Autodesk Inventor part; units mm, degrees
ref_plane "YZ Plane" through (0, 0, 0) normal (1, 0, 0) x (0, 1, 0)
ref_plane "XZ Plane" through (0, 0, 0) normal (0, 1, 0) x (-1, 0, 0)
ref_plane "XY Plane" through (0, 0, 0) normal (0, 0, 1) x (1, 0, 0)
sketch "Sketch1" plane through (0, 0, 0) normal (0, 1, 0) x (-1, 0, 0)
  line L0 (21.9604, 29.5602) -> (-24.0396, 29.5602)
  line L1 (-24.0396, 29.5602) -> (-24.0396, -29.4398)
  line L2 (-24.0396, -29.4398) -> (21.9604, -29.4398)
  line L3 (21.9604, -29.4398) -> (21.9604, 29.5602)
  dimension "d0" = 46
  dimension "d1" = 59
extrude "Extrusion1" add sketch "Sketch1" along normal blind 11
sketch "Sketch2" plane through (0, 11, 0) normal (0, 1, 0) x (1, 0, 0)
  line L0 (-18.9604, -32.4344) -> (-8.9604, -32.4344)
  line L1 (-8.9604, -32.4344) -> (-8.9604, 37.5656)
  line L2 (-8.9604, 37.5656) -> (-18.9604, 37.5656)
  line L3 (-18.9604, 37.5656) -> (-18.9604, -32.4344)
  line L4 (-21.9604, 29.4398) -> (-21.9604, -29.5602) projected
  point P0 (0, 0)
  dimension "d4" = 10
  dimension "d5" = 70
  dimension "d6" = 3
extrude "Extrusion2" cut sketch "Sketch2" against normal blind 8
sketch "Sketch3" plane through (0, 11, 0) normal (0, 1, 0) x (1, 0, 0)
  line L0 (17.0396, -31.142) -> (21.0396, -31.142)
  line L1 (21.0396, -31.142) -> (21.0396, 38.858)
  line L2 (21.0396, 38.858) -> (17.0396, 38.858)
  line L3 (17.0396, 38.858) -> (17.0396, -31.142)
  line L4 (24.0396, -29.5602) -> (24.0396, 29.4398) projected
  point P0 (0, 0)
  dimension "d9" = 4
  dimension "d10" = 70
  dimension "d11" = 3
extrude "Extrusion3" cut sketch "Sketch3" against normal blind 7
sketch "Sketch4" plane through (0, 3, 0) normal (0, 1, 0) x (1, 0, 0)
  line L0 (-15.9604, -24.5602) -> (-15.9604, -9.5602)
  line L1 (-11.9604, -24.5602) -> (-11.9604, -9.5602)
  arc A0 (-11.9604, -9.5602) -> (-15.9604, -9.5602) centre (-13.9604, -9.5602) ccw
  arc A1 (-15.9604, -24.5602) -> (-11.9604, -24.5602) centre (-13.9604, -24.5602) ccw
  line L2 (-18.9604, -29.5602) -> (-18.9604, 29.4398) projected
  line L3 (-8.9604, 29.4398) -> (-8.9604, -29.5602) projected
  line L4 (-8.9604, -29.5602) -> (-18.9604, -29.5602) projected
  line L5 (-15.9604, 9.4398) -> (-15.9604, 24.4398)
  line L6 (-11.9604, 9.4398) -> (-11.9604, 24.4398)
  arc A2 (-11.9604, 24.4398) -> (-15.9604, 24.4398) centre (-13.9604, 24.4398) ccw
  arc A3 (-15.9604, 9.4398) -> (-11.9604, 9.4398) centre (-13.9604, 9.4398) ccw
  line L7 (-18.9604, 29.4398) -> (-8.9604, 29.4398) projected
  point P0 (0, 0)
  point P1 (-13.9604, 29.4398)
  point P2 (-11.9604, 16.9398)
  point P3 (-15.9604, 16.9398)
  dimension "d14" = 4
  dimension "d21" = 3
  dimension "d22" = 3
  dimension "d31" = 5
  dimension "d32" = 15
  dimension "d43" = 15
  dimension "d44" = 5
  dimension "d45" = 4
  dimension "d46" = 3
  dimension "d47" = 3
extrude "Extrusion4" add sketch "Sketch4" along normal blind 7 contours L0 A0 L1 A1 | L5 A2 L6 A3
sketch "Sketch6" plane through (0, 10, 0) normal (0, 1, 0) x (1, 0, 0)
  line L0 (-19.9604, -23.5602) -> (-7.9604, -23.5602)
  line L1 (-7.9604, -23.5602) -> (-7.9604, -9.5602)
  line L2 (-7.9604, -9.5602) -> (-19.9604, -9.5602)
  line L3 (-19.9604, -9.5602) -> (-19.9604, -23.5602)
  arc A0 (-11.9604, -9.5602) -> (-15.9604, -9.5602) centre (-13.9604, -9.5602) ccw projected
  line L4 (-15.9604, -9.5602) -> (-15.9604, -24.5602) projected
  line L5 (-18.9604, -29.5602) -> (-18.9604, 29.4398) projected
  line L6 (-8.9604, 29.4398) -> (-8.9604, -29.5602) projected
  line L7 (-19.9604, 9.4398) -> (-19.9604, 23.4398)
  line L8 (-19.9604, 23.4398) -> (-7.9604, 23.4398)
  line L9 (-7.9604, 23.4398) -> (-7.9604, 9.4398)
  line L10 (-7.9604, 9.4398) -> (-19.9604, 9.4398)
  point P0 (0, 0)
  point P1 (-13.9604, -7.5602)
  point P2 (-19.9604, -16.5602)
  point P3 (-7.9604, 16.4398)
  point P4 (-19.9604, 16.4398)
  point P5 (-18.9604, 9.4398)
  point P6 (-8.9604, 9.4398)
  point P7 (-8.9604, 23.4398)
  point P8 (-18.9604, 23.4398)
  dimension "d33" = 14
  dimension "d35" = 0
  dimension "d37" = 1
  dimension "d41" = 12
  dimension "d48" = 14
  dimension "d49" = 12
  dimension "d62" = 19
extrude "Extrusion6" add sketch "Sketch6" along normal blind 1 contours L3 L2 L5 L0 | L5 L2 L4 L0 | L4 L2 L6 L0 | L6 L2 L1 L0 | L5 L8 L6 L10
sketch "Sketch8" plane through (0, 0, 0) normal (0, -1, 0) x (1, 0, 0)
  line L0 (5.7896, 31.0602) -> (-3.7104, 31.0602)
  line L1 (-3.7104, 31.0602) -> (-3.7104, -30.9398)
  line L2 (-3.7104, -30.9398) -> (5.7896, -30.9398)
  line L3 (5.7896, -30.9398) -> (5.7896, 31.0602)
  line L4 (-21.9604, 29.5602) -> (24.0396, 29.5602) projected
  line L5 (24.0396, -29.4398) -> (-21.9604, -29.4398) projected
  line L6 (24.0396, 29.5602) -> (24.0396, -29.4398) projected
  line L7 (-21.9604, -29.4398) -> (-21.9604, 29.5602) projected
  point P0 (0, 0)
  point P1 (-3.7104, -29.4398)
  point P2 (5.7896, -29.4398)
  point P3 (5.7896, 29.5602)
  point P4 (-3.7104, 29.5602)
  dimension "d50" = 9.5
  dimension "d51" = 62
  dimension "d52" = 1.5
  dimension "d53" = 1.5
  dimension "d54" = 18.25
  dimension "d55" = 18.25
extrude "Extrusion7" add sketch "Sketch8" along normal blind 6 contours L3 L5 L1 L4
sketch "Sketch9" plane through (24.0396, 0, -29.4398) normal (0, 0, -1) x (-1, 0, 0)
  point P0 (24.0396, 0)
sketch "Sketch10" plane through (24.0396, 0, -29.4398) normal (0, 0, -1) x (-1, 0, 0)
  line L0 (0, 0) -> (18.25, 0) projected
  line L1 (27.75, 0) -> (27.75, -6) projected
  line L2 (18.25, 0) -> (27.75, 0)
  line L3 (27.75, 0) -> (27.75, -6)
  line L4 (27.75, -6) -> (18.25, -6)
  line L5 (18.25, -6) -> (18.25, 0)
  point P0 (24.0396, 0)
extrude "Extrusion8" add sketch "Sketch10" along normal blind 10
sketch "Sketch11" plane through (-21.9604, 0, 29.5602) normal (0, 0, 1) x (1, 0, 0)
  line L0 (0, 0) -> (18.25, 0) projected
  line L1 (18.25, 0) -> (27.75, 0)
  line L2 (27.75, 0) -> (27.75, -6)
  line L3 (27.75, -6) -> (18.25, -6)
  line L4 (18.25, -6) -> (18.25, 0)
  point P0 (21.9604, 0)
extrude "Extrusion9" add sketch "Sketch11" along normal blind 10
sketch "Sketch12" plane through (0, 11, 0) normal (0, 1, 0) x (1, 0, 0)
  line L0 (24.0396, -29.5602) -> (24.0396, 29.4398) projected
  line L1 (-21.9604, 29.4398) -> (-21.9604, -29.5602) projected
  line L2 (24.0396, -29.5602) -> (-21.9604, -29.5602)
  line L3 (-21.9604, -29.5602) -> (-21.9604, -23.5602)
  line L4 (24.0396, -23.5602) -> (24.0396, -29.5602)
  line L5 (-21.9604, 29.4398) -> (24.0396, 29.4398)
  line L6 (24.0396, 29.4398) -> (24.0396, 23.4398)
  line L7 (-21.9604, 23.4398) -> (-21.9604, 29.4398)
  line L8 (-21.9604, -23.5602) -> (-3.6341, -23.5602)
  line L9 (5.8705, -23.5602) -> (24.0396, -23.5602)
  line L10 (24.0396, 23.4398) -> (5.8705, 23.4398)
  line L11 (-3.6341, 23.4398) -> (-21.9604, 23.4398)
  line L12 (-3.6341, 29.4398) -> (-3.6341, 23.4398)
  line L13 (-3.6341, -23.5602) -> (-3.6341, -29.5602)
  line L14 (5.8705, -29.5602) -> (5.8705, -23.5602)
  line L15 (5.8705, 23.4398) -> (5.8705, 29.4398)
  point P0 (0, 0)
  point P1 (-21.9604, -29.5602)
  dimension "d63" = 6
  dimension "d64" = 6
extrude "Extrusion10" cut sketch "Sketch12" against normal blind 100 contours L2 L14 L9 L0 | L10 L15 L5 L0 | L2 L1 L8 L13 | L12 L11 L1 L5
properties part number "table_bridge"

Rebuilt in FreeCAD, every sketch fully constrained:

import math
import FreeCAD as App
import Part
import Sketcher
from FreeCAD import Vector
Q = App.Units.Quantity

doc = App.newDocument("Part")
body = doc.addObject("PartDesign::Body", "Body")

# Sketch on XZ plane
sketch1 = body.newObject("Sketcher::SketchObject", "Sketch")
sketch1.AttachmentSupport = (doc.getObject("XZ_Plane"), [""])
sketch1.MapMode = "FlatFace"
sketch1.addGeometry([
    Part.LineSegment(Vector(-21.9604, -29.4398, 0), Vector(-21.9604, 29.5602, 0)),
    Part.LineSegment(Vector(-21.9604, 29.5602, 0), Vector(24.0396, 29.5602, 0)),
    Part.LineSegment(Vector(24.0396, 29.5602, 0), Vector(24.0396, -29.4398, 0)),
    Part.LineSegment(Vector(24.0396, -29.4398, 0), Vector(-21.9604, -29.4398, 0)),
], False)
sketch1.addConstraint([
    Sketcher.Constraint("Coincident", 0, 2, 1, 1),
    Sketcher.Constraint("Coincident", 1, 2, 2, 1),
    Sketcher.Constraint("Coincident", 2, 2, 3, 1),
    Sketcher.Constraint("Coincident", 3, 2, 0, 1),
    Sketcher.Constraint("Vertical", 0),
    Sketcher.Constraint("Horizontal", 1),
    Sketcher.Constraint("Vertical", 2),
    Sketcher.Constraint("Horizontal", 3),
    Sketcher.Constraint("DistanceX", 1, 1, 1, 2, Q("46 mm")),
    Sketcher.Constraint("DistanceY", 0, 1, 0, 2, Q("59 mm")),
    Sketcher.Constraint("DistanceX", 0, 2, -1, 1, Q("21.9604 mm")),
    Sketcher.Constraint("DistanceY", -1, 1, 0, 2, Q("29.5602 mm")),
])
pad1 = body.newObject("PartDesign::Pad", "Pad")
pad1.Profile = sketch1
pad1.Length = 11
pad1.Reversed = True

# Sketch on XZ plane
sketch2 = body.newObject("Sketcher::SketchObject", "Sketch001")
sketch2.AttachmentSupport = (doc.getObject("XZ_Plane"), [""])
sketch2.MapMode = "FlatFace"
sketch2.AttachmentOffset = App.Placement(Vector(0, 0, -11), App.Rotation())
sketch2.addGeometry([
    Part.LineSegment(Vector(-18.9604, -37.5656, 0), Vector(-18.9604, 32.4344, 0)),
    Part.LineSegment(Vector(-18.9604, 32.4344, 0), Vector(-8.9604, 32.4344, 0)),
    Part.LineSegment(Vector(-8.9604, 32.4344, 0), Vector(-8.9604, -37.5656, 0)),
    Part.LineSegment(Vector(-8.9604, -37.5656, 0), Vector(-18.9604, -37.5656, 0)),
], False)
sketch2.addConstraint([
    Sketcher.Constraint("Coincident", 0, 2, 1, 1),
    Sketcher.Constraint("Coincident", 1, 2, 2, 1),
    Sketcher.Constraint("Coincident", 2, 2, 3, 1),
    Sketcher.Constraint("Coincident", 3, 2, 0, 1),
    Sketcher.Constraint("Vertical", 0),
    Sketcher.Constraint("Horizontal", 1),
    Sketcher.Constraint("Vertical", 2),
    Sketcher.Constraint("Horizontal", 3),
    Sketcher.Constraint("DistanceX", 1, 1, 1, 2, Q("10 mm")),
    Sketcher.Constraint("DistanceY", 0, 1, 0, 2, Q("70 mm")),
    Sketcher.Constraint("DistanceX", 0, 2, -1, 1, Q("18.9604 mm")),
    Sketcher.Constraint("DistanceY", -1, 1, 0, 2, Q("32.4344 mm")),
])
pocket1 = body.newObject("PartDesign::Pocket", "Pocket")
pocket1.Profile = sketch2
pocket1.Length = 8
pocket1.Reversed = True

# Sketch on XZ plane
sketch3 = body.newObject("Sketcher::SketchObject", "Sketch002")
sketch3.AttachmentSupport = (doc.getObject("XZ_Plane"), [""])
sketch3.MapMode = "FlatFace"
sketch3.AttachmentOffset = App.Placement(Vector(0, 0, -11), App.Rotation())
sketch3.addGeometry([
    Part.LineSegment(Vector(17.0396, -38.858, 0), Vector(17.0396, 31.142, 0)),
    Part.LineSegment(Vector(17.0396, 31.142, 0), Vector(21.0396, 31.142, 0)),
    Part.LineSegment(Vector(21.0396, 31.142, 0), Vector(21.0396, -38.858, 0)),
    Part.LineSegment(Vector(21.0396, -38.858, 0), Vector(17.0396, -38.858, 0)),
], False)
sketch3.addConstraint([
    Sketcher.Constraint("Coincident", 0, 2, 1, 1),
    Sketcher.Constraint("Coincident", 1, 2, 2, 1),
    Sketcher.Constraint("Coincident", 2, 2, 3, 1),
    Sketcher.Constraint("Coincident", 3, 2, 0, 1),
    Sketcher.Constraint("Vertical", 0),
    Sketcher.Constraint("Horizontal", 1),
    Sketcher.Constraint("Vertical", 2),
    Sketcher.Constraint("Horizontal", 3),
    Sketcher.Constraint("DistanceX", 1, 1, 1, 2, Q("4 mm")),
    Sketcher.Constraint("DistanceY", 0, 1, 0, 2, Q("70 mm")),
    Sketcher.Constraint("DistanceY", -1, 1, 0, 2, Q("31.142 mm")),
    Sketcher.Constraint("DistanceX", -1, 1, 0, 2, Q("17.0396 mm")),
])
pocket2 = body.newObject("PartDesign::Pocket", "Pocket001")
pocket2.Profile = sketch3
pocket2.Length = 7
pocket2.Reversed = True

# Sketch on XZ plane
sketch4 = body.newObject("Sketcher::SketchObject", "Sketch003")
sketch4.AttachmentSupport = (doc.getObject("XZ_Plane"), [""])
sketch4.MapMode = "FlatFace"
sketch4.AttachmentOffset = App.Placement(Vector(0, 0, -3), App.Rotation())
sketch4.addGeometry([
    Part.LineSegment(Vector(-15.9604, 9.5602, 0), Vector(-15.9604, 24.5602, 0)),  # 0
    Part.ArcOfCircle(Part.Circle(Vector(-13.9604, 24.5602, 0), Vector(0, 0, 1), 2), math.radians(0), math.radians(180)),  # 1
    Part.LineSegment(Vector(-11.9604, 24.5602, 0), Vector(-11.9604, 9.5602, 0)),  # 2
    Part.ArcOfCircle(Part.Circle(Vector(-13.9604, 9.5602, 0), Vector(0, 0, 1), 2), math.radians(180), math.radians(360)),  # 3
    Part.LineSegment(Vector(-15.9604, -24.4398, 0), Vector(-15.9604, -9.4398, 0)),  # 4
    Part.ArcOfCircle(Part.Circle(Vector(-13.9604, -9.4398, 0), Vector(0, 0, 1), 2), math.radians(0), math.radians(180)),  # 5
    Part.LineSegment(Vector(-11.9604, -9.4398, 0), Vector(-11.9604, -24.4398, 0)),  # 6
    Part.ArcOfCircle(Part.Circle(Vector(-13.9604, -24.4398, 0), Vector(0, 0, 1), 2), math.radians(180), math.radians(360)),  # 7
], False)
sketch4.addConstraint([
    Sketcher.Constraint("Tangent", 0, 2, 1, 2),
    Sketcher.Constraint("Tangent", 1, 1, 2, 1),
    Sketcher.Constraint("Tangent", 2, 2, 3, 2),
    Sketcher.Constraint("Tangent", 3, 1, 0, 1),
    Sketcher.Constraint("Tangent", 4, 2, 5, 2),
    Sketcher.Constraint("Tangent", 5, 1, 6, 1),
    Sketcher.Constraint("Tangent", 6, 2, 7, 2),
    Sketcher.Constraint("Tangent", 7, 1, 4, 1),
    Sketcher.Constraint("Vertical", 0),
    Sketcher.Constraint("Vertical", 2),
    Sketcher.Constraint("Vertical", 4),
    Sketcher.Constraint("Vertical", 6),
    Sketcher.Constraint("Equal", 3, 5),
    Sketcher.Constraint("Vertical", 3, 3, 5, 3),
    Sketcher.Constraint("Equal", 2, 4),
    Sketcher.Constraint("Radius", 1, Q("2 mm")),
    Sketcher.Constraint("DistanceY", 0, 1, 0, 2, Q("15 mm")),
    Sketcher.Constraint("DistanceY", 5, 3, 3, 3, Q("19 mm")),
    Sketcher.Constraint("DistanceX", 1, 3, -1, 1, Q("13.9604 mm")),
    Sketcher.Constraint("DistanceY", -1, 1, 1, 3, Q("24.5602 mm")),
])
pad2 = body.newObject("PartDesign::Pad", "Pad001")
pad2.Profile = sketch4
pad2.Length = 7
pad2.Reversed = True

# Sketch on XZ plane
sketch5 = body.newObject("Sketcher::SketchObject", "Sketch004")
sketch5.AttachmentSupport = (doc.getObject("XZ_Plane"), [""])
sketch5.MapMode = "FlatFace"
sketch5.AttachmentOffset = App.Placement(Vector(0, 0, -10), App.Rotation())
sketch5.addGeometry([
    Part.LineSegment(Vector(-19.9604, 9.5602, 0), Vector(-19.9604, 23.5602, 0)),  # 0
    Part.LineSegment(Vector(-19.9604, 23.5602, 0), Vector(-7.9604, 23.5602, 0)),  # 1
    Part.LineSegment(Vector(-7.9604, 23.5602, 0), Vector(-7.9604, 9.5602, 0)),  # 2
    Part.LineSegment(Vector(-7.9604, 9.5602, 0), Vector(-19.9604, 9.5602, 0)),  # 3
    Part.LineSegment(Vector(-18.9604, -23.4398, 0), Vector(-18.9604, -9.4398, 0)),  # 4
    Part.LineSegment(Vector(-18.9604, -9.4398, 0), Vector(-8.9604, -9.4398, 0)),  # 5
    Part.LineSegment(Vector(-8.9604, -9.4398, 0), Vector(-8.9604, -23.4398, 0)),  # 6
    Part.LineSegment(Vector(-8.9604, -23.4398, 0), Vector(-18.9604, -23.4398, 0)),  # 7
], False)
sketch5.addConstraint([
    Sketcher.Constraint("Coincident", 0, 2, 1, 1),
    Sketcher.Constraint("Coincident", 1, 2, 2, 1),
    Sketcher.Constraint("Coincident", 2, 2, 3, 1),
    Sketcher.Constraint("Coincident", 3, 2, 0, 1),
    Sketcher.Constraint("Coincident", 4, 2, 5, 1),
    Sketcher.Constraint("Coincident", 5, 2, 6, 1),
    Sketcher.Constraint("Coincident", 6, 2, 7, 1),
    Sketcher.Constraint("Coincident", 7, 2, 4, 1),
    Sketcher.Constraint("Vertical", 0),
    Sketcher.Constraint("Horizontal", 1),
    Sketcher.Constraint("Vertical", 2),
    Sketcher.Constraint("Horizontal", 3),
    Sketcher.Constraint("Vertical", 4),
    Sketcher.Constraint("Horizontal", 5),
    Sketcher.Constraint("Vertical", 6),
    Sketcher.Constraint("Horizontal", 7),
    Sketcher.Constraint("Equal", 2, 4),
    Sketcher.Constraint("DistanceX", 1, 1, 1, 2, Q("12 mm")),
    Sketcher.Constraint("DistanceY", 0, 1, 0, 2, Q("14 mm")),
    Sketcher.Constraint("DistanceX", 3, 2, 4, 2, Q("1 mm")),
    Sketcher.Constraint("DistanceY", 4, 2, 3, 2, Q("19 mm")),
    Sketcher.Constraint("DistanceX", 5, 2, 2, 2, Q("1 mm")),
    Sketcher.Constraint("DistanceX", 0, 2, -1, 1, Q("19.9604 mm")),
    Sketcher.Constraint("DistanceY", -1, 1, 0, 2, Q("23.5602 mm")),
])
pad3 = body.newObject("PartDesign::Pad", "Pad002")
pad3.Profile = sketch5
pad3.Length = 1
pad3.Reversed = True

# Sketch on XZ plane
sketch6 = body.newObject("Sketcher::SketchObject", "Sketch005")
sketch6.AttachmentSupport = (doc.getObject("XZ_Plane"), [""])
sketch6.MapMode = "FlatFace"
sketch6.addGeometry([
    Part.LineSegment(Vector(5.7896, -29.4398, 0), Vector(5.7896, 29.5602, 0)),
    Part.LineSegment(Vector(5.7896, 29.5602, 0), Vector(-3.7104, 29.5602, 0)),
    Part.LineSegment(Vector(-3.7104, 29.5602, 0), Vector(-3.7104, -29.4398, 0)),
    Part.LineSegment(Vector(-3.7104, -29.4398, 0), Vector(5.7896, -29.4398, 0)),
], False)
sketch6.addConstraint([
    Sketcher.Constraint("Coincident", 0, 2, 1, 1),
    Sketcher.Constraint("Coincident", 1, 2, 2, 1),
    Sketcher.Constraint("Coincident", 2, 2, 3, 1),
    Sketcher.Constraint("Coincident", 3, 2, 0, 1),
    Sketcher.Constraint("Vertical", 0),
    Sketcher.Constraint("Horizontal", 1),
    Sketcher.Constraint("Vertical", 2),
    Sketcher.Constraint("Horizontal", 3),
    Sketcher.Constraint("DistanceX", 1, 2, 1, 1, Q("9.5 mm")),
    Sketcher.Constraint("DistanceY", 0, 1, 0, 2, Q("59 mm")),
    Sketcher.Constraint("DistanceX", -1, 1, 0, 2, Q("5.7896 mm")),
    Sketcher.Constraint("DistanceY", -1, 1, 0, 2, Q("29.5602 mm")),
])
pad4 = body.newObject("PartDesign::Pad", "Pad003")
pad4.Profile = sketch6
pad4.Length = 6

# Sketch on XY plane
sketch7 = body.newObject("Sketcher::SketchObject", "Sketch006")
sketch7.AttachmentSupport = (doc.getObject("XY_Plane"), [""])
sketch7.MapMode = "FlatFace"
sketch7.AttachmentOffset = App.Placement(Vector(0, 0, -29.4398), App.Rotation())
sketch7.addGeometry([
    Part.LineSegment(Vector(-3.7104, -6, 0), Vector(-3.7104, 0, 0)),
    Part.LineSegment(Vector(-3.7104, 0, 0), Vector(5.7896, 0, 0)),
    Part.LineSegment(Vector(5.7896, 0, 0), Vector(5.7896, -6, 0)),
    Part.LineSegment(Vector(5.7896, -6, 0), Vector(-3.7104, -6, 0)),
], False)
sketch7.addConstraint([
    Sketcher.Constraint("Coincident", 0, 2, 1, 1),
    Sketcher.Constraint("Coincident", 1, 2, 2, 1),
    Sketcher.Constraint("Coincident", 2, 2, 3, 1),
    Sketcher.Constraint("Coincident", 3, 2, 0, 1),
    Sketcher.Constraint("Vertical", 0),
    Sketcher.Constraint("Horizontal", 1),
    Sketcher.Constraint("Vertical", 2),
    Sketcher.Constraint("Horizontal", 3),
    Sketcher.Constraint("PointOnObject", 0, 2, -1),
    Sketcher.Constraint("DistanceY", 0, 1, 0, 2, Q("6 mm")),
    Sketcher.Constraint("DistanceX", 1, 1, 1, 2, Q("9.5 mm")),
    Sketcher.Constraint("DistanceX", 0, 2, -1, 1, Q("3.7104 mm")),
])
pad5 = body.newObject("PartDesign::Pad", "Pad004")
pad5.Profile = sketch7
pad5.Length = 10
pad5.Reversed = True

# Sketch on XY plane
sketch8 = body.newObject("Sketcher::SketchObject", "Sketch007")
sketch8.AttachmentSupport = (doc.getObject("XY_Plane"), [""])
sketch8.MapMode = "FlatFace"
sketch8.AttachmentOffset = App.Placement(Vector(0, 0, 29.5602), App.Rotation())
sketch8.addGeometry([
    Part.LineSegment(Vector(5.7896, 0, 0), Vector(-3.7104, 0, 0)),
    Part.LineSegment(Vector(-3.7104, 0, 0), Vector(-3.7104, -6, 0)),
    Part.LineSegment(Vector(-3.7104, -6, 0), Vector(5.7896, -6, 0)),
    Part.LineSegment(Vector(5.7896, -6, 0), Vector(5.7896, 0, 0)),
], False)
sketch8.addConstraint([
    Sketcher.Constraint("Coincident", 0, 2, 1, 1),
    Sketcher.Constraint("Coincident", 1, 2, 2, 1),
    Sketcher.Constraint("Coincident", 2, 2, 3, 1),
    Sketcher.Constraint("Coincident", 3, 2, 0, 1),
    Sketcher.Constraint("Horizontal", 0),
    Sketcher.Constraint("Vertical", 1),
    Sketcher.Constraint("Horizontal", 2),
    Sketcher.Constraint("Vertical", 3),
    Sketcher.Constraint("PointOnObject", 0, 2, -1),
    Sketcher.Constraint("DistanceY", 1, 2, 1, 1, Q("6 mm")),
    Sketcher.Constraint("DistanceX", 0, 2, 0, 1, Q("9.5 mm")),
    Sketcher.Constraint("DistanceX", 0, 2, -1, 1, Q("3.7104 mm")),
])
pad6 = body.newObject("PartDesign::Pad", "Pad005")
pad6.Profile = sketch8
pad6.Length = 10

# Sketch on XZ plane
sketch9 = body.newObject("Sketcher::SketchObject", "Sketch008")
sketch9.AttachmentSupport = (doc.getObject("XZ_Plane"), [""])
sketch9.MapMode = "FlatFace"
sketch9.AttachmentOffset = App.Placement(Vector(0, 0, -11), App.Rotation())
sketch9.addGeometry([
    Part.LineSegment(Vector(5.8705, 29.5602, 0), Vector(24.0396, 29.5602, 0)),  # 0
    Part.LineSegment(Vector(24.0396, 29.5602, 0), Vector(24.0396, 23.5602, 0)),  # 1
    Part.LineSegment(Vector(24.0396, 23.5602, 0), Vector(5.8705, 23.5602, 0)),  # 2
    Part.LineSegment(Vector(5.8705, 23.5602, 0), Vector(5.8705, 29.5602, 0)),  # 3
    Part.LineSegment(Vector(5.8705, -23.4398, 0), Vector(24.0396, -23.4398, 0)),  # 4
    Part.LineSegment(Vector(24.0396, -23.4398, 0), Vector(24.0396, -29.4398, 0)),  # 5
    Part.LineSegment(Vector(24.0396, -29.4398, 0), Vector(5.8705, -29.4398, 0)),  # 6
    Part.LineSegment(Vector(5.8705, -29.4398, 0), Vector(5.8705, -23.4398, 0)),  # 7
    Part.LineSegment(Vector(-21.9604, 29.5602, 0), Vector(-3.6341, 29.5602, 0)),  # 8
    Part.LineSegment(Vector(-3.6341, 29.5602, 0), Vector(-3.6341, 23.5602, 0)),  # 9
    Part.LineSegment(Vector(-3.6341, 23.5602, 0), Vector(-21.9604, 23.5602, 0)),  # 10
    Part.LineSegment(Vector(-21.9604, 23.5602, 0), Vector(-21.9604, 29.5602, 0)),  # 11
    Part.LineSegment(Vector(-3.6341, -23.4398, 0), Vector(-3.6341, -29.4398, 0)),  # 12
    Part.LineSegment(Vector(-3.6341, -29.4398, 0), Vector(-21.9604, -29.4398, 0)),  # 13
    Part.LineSegment(Vector(-21.9604, -29.4398, 0), Vector(-21.9604, -23.4398, 0)),  # 14
    Part.LineSegment(Vector(-21.9604, -23.4398, 0), Vector(-3.6341, -23.4398, 0)),  # 15
], False)
sketch9.addConstraint([
    Sketcher.Constraint("Coincident", 0, 2, 1, 1),
    Sketcher.Constraint("Coincident", 1, 2, 2, 1),
    Sketcher.Constraint("Coincident", 2, 2, 3, 1),
    Sketcher.Constraint("Coincident", 3, 2, 0, 1),
    Sketcher.Constraint("Coincident", 4, 2, 5, 1),
    Sketcher.Constraint("Coincident", 5, 2, 6, 1),
    Sketcher.Constraint("Coincident", 6, 2, 7, 1),
    Sketcher.Constraint("Coincident", 7, 2, 4, 1),
    Sketcher.Constraint("Coincident", 8, 2, 9, 1),
    Sketcher.Constraint("Coincident", 9, 2, 10, 1),
    Sketcher.Constraint("Coincident", 10, 2, 11, 1),
    Sketcher.Constraint("Coincident", 11, 2, 8, 1),
    Sketcher.Constraint("Coincident", 12, 2, 13, 1),
    Sketcher.Constraint("Coincident", 13, 2, 14, 1),
    Sketcher.Constraint("Coincident", 14, 2, 15, 1),
    Sketcher.Constraint("Coincident", 15, 2, 12, 1),
    Sketcher.Constraint("Horizontal", 0),
    Sketcher.Constraint("Vertical", 1),
    Sketcher.Constraint("Horizontal", 2),
    Sketcher.Constraint("Vertical", 3),
    Sketcher.Constraint("Horizontal", 4),
    Sketcher.Constraint("Vertical", 5),
    Sketcher.Constraint("Horizontal", 6),
    Sketcher.Constraint("Vertical", 7),
    Sketcher.Constraint("Horizontal", 8),
    Sketcher.Constraint("Vertical", 9),
    Sketcher.Constraint("Horizontal", 10),
    Sketcher.Constraint("Vertical", 11),
    Sketcher.Constraint("Vertical", 12),
    Sketcher.Constraint("Horizontal", 13),
    Sketcher.Constraint("Vertical", 14),
    Sketcher.Constraint("Horizontal", 15),
    Sketcher.Constraint("Horizontal", 3, 2, 8, 2),
    Sketcher.Constraint("Horizontal", 2, 2, 9, 2),
    Sketcher.Constraint("Horizontal", 6, 2, 12, 2),
    Sketcher.Constraint("Horizontal", 7, 2, 14, 2),
    Sketcher.Constraint("Vertical", 1, 2, 4, 2),
    Sketcher.Constraint("Vertical", 3, 2, 6, 2),
    Sketcher.Constraint("Vertical", 9, 2, 12, 2),
    Sketcher.Constraint("Vertical", 11, 2, 13, 2),
    Sketcher.Constraint("Equal", 3, 5),
    Sketcher.Constraint("DistanceY", 1, 2, 1, 1, Q("6 mm")),
    Sketcher.Constraint("DistanceY", 4, 2, 1, 2, Q("47 mm")),
    Sketcher.Constraint("DistanceX", 10, 2, 1, 2, Q("46 mm")),
    Sketcher.Constraint("DistanceX", 0, 1, 0, 2, Q("18.169 mm")),
    Sketcher.Constraint("DistanceX", 8, 1, 8, 2, Q("18.3263 mm")),
    Sketcher.Constraint("DistanceX", 8, 2, -1, 1, Q("3.634 mm")),
    Sketcher.Constraint("DistanceY", -1, 1, 0, 2, Q("29.5602 mm")),
])
pocket3 = body.newObject("PartDesign::Pocket", "Pocket002")
pocket3.Profile = sketch9
pocket3.Length = 100
pocket3.Reversed = True

doc.recompute()
